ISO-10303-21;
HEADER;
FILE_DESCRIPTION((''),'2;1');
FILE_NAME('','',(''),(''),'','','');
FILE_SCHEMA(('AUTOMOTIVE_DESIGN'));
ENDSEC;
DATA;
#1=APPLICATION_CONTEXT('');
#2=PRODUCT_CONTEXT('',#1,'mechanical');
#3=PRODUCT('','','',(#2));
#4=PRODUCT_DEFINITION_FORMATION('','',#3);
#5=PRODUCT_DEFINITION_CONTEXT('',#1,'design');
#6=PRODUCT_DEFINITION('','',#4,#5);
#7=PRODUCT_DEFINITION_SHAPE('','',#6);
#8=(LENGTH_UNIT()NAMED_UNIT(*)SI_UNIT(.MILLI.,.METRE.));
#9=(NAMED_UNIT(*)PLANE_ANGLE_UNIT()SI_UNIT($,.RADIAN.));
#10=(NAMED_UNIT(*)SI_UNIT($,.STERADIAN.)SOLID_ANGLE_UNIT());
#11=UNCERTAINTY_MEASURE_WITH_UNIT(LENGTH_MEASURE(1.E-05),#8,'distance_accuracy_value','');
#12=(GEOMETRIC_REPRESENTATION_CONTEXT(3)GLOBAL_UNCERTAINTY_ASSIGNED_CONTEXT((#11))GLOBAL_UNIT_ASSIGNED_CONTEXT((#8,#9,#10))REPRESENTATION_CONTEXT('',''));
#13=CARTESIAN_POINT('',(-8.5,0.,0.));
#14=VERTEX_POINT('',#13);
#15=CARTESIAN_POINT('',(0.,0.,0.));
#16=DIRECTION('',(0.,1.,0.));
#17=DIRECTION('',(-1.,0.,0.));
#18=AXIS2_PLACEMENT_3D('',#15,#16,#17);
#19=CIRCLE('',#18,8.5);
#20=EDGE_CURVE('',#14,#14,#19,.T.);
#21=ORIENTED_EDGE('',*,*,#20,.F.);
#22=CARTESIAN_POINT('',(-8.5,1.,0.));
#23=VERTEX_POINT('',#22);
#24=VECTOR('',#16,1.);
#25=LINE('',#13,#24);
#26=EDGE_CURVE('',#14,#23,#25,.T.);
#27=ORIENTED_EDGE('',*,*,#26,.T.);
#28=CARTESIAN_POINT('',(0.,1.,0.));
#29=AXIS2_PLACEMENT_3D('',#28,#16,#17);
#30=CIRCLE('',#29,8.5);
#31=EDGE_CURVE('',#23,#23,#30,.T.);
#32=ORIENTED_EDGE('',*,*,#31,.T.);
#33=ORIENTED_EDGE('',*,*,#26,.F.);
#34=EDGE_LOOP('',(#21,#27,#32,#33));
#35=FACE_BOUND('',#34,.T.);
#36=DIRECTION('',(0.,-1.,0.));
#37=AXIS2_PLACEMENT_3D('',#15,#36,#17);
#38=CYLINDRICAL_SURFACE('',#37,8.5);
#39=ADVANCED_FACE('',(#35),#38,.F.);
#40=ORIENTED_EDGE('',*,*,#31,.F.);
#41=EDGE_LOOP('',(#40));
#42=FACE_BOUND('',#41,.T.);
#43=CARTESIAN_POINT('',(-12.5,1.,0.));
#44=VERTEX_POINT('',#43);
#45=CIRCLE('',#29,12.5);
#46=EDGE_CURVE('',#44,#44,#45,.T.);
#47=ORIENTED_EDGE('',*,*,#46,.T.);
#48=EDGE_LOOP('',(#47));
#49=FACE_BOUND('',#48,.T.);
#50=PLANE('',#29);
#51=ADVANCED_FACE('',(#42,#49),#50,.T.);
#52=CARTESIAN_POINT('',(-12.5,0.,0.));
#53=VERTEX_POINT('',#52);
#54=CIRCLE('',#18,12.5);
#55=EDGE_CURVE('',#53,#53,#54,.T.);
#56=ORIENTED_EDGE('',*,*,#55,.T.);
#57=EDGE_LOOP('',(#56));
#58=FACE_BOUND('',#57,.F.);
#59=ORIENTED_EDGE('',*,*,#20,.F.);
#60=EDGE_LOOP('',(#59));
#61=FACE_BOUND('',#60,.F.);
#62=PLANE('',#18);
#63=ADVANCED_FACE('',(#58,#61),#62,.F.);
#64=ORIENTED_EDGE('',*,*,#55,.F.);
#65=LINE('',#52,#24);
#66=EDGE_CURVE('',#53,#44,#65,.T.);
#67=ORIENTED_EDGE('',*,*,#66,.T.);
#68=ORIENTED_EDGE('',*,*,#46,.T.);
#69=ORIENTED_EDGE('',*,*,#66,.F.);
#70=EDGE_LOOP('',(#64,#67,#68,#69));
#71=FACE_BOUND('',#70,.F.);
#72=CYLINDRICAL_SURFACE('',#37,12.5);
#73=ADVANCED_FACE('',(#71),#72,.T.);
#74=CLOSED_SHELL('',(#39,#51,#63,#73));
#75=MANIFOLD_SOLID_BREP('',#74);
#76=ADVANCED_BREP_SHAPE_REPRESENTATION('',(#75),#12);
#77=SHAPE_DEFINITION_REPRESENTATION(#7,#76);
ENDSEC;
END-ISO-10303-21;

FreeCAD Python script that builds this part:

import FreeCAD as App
import Part
import Sketcher
from FreeCAD import Vector
Q = App.Units.Quantity

doc = App.newDocument("Part")
body = doc.addObject("PartDesign::Body", "Body")

sketch1 = body.newObject("Sketcher::SketchObject", "Sketch")
sketch1.AttachmentSupport = (doc.getObject("XZ_Plane"), [""])
sketch1.MapMode = "FlatFace"
sketch1.addGeometry(Part.Circle(Vector(0, 0, 0), Vector(0, 0, 1), 12), False)
sketch1.addGeometry(Part.Circle(Vector(0, 0, 0), Vector(0, 0, 1), 8), False)
sketch1.addConstraint(Sketcher.Constraint("Coincident", 0, 3, -1, 1))
sketch1.addConstraint(Sketcher.Constraint("Coincident", 1, 3, -1, 1))
sketch1.addConstraint(Sketcher.Constraint("Diameter", 0, Q("25 mm")))
sketch1.addConstraint(Sketcher.Constraint("Diameter", 1, Q("17 mm")))
pad1 = body.newObject("PartDesign::Pad", "Pad")
pad1.Profile = sketch1
pad1.Length = 1
pad1.Reversed = True

doc.recompute()
